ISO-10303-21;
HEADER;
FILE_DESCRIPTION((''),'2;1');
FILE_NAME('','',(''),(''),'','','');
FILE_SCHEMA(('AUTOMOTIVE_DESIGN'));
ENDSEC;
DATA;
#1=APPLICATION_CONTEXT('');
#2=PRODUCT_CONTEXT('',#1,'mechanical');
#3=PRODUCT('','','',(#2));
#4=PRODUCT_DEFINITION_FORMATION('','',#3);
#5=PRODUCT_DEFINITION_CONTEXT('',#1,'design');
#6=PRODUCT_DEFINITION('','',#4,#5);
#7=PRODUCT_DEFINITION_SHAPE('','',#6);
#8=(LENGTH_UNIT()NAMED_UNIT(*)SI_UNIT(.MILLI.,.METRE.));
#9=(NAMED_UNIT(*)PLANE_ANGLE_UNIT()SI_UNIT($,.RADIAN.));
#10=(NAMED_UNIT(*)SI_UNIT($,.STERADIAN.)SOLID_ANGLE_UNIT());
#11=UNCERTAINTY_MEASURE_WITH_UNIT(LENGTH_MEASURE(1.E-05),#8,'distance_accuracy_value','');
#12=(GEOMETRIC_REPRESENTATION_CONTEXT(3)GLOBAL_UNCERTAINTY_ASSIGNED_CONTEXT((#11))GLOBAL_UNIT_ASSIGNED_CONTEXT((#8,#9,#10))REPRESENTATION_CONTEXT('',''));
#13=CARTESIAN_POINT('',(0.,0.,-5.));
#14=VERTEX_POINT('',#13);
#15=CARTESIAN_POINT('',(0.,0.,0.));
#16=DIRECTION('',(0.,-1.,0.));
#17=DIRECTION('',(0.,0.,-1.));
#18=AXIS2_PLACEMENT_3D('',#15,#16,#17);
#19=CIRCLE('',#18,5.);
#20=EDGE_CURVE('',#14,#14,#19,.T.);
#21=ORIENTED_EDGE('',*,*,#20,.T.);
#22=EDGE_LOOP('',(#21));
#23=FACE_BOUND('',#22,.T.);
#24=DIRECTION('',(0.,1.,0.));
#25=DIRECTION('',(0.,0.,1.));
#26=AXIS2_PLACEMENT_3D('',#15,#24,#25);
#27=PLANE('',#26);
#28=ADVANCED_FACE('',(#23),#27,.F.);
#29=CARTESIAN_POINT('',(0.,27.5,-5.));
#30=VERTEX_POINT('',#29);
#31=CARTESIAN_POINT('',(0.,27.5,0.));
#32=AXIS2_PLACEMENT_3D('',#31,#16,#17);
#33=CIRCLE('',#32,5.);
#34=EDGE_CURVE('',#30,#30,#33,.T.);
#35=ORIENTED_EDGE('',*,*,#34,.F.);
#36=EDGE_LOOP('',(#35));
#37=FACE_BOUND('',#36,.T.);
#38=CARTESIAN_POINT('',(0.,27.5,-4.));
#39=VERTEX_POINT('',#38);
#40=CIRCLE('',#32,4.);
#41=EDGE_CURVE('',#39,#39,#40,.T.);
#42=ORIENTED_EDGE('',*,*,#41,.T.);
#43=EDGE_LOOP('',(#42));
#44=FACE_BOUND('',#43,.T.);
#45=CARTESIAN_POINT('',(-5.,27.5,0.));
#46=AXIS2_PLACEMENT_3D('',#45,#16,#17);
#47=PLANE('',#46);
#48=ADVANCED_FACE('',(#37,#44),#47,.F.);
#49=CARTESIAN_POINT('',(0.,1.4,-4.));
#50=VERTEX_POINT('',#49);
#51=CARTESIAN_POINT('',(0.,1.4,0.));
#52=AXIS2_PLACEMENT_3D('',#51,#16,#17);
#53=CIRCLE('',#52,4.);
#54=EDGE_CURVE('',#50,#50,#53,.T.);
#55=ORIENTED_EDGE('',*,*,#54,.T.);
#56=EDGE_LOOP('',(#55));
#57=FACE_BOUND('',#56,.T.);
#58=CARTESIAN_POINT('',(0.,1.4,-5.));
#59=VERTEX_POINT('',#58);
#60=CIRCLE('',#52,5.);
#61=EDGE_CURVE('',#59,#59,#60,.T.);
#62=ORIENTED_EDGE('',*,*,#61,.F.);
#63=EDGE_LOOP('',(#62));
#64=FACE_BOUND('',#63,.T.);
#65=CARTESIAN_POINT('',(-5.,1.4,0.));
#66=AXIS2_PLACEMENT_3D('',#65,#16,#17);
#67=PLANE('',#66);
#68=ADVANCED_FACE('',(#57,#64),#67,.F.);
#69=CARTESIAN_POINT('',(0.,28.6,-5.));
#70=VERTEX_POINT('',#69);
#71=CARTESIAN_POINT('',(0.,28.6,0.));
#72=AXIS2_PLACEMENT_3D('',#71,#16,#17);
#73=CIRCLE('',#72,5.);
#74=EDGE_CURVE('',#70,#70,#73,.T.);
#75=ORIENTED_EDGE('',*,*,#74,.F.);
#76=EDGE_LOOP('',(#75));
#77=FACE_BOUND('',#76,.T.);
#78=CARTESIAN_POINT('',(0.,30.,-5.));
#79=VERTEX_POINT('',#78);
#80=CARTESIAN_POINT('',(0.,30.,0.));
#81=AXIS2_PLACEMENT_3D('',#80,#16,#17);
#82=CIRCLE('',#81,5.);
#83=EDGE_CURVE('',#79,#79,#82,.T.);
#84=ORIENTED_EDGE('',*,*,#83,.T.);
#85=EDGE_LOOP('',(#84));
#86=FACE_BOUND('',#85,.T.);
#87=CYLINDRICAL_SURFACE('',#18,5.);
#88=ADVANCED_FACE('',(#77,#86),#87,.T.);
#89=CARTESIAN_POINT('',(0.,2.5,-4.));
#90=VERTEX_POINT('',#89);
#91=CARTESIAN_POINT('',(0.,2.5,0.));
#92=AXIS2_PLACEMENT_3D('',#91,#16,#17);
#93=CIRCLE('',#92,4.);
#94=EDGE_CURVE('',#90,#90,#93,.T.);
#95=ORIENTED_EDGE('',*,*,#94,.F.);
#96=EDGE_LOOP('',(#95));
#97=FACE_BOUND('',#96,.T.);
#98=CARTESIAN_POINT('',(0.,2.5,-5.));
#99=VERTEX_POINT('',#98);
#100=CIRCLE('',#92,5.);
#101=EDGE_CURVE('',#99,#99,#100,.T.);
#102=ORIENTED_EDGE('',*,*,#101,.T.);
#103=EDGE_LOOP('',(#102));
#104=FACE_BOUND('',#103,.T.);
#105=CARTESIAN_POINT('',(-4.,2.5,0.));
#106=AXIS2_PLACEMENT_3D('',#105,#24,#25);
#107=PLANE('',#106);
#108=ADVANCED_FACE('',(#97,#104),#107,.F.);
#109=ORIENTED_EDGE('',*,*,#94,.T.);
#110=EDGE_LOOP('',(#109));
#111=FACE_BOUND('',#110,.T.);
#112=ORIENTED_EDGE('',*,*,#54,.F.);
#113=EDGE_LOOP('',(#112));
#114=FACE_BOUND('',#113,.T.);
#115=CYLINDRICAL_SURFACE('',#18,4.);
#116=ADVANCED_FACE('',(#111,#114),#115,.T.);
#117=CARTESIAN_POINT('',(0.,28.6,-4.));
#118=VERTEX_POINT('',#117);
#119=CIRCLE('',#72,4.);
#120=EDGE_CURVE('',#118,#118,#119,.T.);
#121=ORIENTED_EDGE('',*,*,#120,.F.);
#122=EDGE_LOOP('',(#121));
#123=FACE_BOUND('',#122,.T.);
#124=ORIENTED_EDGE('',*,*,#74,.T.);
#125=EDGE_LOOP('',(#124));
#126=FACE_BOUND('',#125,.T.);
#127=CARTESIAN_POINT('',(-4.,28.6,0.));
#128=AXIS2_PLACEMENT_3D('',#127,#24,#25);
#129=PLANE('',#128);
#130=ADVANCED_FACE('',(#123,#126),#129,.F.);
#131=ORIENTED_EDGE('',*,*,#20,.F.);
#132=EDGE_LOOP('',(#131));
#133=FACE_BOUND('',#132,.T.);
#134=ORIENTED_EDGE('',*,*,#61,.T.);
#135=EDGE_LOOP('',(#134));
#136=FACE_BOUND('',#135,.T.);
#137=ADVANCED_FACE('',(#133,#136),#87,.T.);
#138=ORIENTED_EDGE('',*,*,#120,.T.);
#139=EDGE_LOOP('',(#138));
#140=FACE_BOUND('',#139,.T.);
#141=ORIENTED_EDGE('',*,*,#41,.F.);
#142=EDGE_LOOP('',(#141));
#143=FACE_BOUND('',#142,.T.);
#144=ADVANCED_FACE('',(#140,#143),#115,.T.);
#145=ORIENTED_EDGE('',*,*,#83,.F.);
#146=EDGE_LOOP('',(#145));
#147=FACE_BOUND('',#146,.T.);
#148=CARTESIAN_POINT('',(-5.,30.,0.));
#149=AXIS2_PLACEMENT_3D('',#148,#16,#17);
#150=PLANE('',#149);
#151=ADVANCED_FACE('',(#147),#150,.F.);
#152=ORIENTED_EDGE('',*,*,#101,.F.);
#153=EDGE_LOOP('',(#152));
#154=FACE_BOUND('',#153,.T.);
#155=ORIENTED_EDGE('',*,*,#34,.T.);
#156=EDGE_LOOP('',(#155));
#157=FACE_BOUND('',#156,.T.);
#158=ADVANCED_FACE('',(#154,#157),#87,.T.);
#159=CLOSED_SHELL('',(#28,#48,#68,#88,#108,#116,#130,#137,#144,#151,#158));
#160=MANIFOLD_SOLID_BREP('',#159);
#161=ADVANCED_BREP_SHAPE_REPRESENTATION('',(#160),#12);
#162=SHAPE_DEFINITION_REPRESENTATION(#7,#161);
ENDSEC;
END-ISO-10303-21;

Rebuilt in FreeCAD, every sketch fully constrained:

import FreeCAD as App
import Part
import Sketcher

V = App.Vector
Q = App.Units.Quantity


def add_polygon(sketch, points):
    """Adds a closed chain of lines whose ends are joined by coincident constraints."""
    first, n = sketch.GeometryCount, len(points)
    for a, b in zip(points, points[1:] + points[:1]):
        sketch.addGeometry(Part.LineSegment(App.Vector(*a, 0), App.Vector(*b, 0)), False)
    for i in range(n):
        sketch.addConstraint(Sketcher.Constraint("Coincident", first + i, 2, first + (i + 1) % n, 1))

doc = App.newDocument("Part")
body = doc.addObject("PartDesign::Body", "Body")

# Sketch on XY plane
sketch1 = body.newObject("Sketcher::SketchObject", "Sketch")
sketch1.AttachmentSupport = (doc.getObject("XY_Plane"), [""])
sketch1.MapMode = "FlatFace"
add_polygon(sketch1, [(-5, 0), (0, 0), (0, 30), (-5, 30), (-5, 28.6), (-4, 28.6), (-4, 27.5), (-5, 27.5), (-5, 2.5), (-4, 2.5), (-4, 1.4), (-5, 1.4)])  # lines 0-11
sketch1.addConstraint([
    Sketcher.Constraint("Horizontal", 0),
    Sketcher.Constraint("Vertical", 1),
    Sketcher.Constraint("Horizontal", 2),
    Sketcher.Constraint("Vertical", 3),
    Sketcher.Constraint("Horizontal", 4),
    Sketcher.Constraint("Vertical", 5),
    Sketcher.Constraint("Horizontal", 6),
    Sketcher.Constraint("Vertical", 7),
    Sketcher.Constraint("Horizontal", 8),
    Sketcher.Constraint("Vertical", 9),
    Sketcher.Constraint("Horizontal", 10),
    Sketcher.Constraint("Vertical", 11),
    Sketcher.Constraint("Coincident", 0, 2, -1, 1),
    Sketcher.Constraint("Vertical", 3, 2, 6, 2),
    Sketcher.Constraint("Vertical", 5, 2, 8, 2),
    Sketcher.Constraint("Vertical", 7, 2, 10, 2),
    Sketcher.Constraint("Equal", 5, 9),
    Sketcher.Constraint("Equal", 3, 11),
    Sketcher.Constraint("DistanceX", 0, 1, 0, 2, Q("5 mm")),
    Sketcher.Constraint("DistanceX", 4, 1, 4, 2, Q("1 mm")),
    Sketcher.Constraint("DistanceY", 1, 1, 1, 2, Q("30 mm")),
    Sketcher.Constraint("DistanceY", 7, 2, 7, 1, Q("25 mm")),
    Sketcher.Constraint("DistanceY", 3, 2, 3, 1, Q("1.4 mm")),
])
revolution = body.newObject("PartDesign::Revolution", "Revolution")
revolution.Profile = sketch1
revolution.ReferenceAxis = (sketch1, ["V_Axis"])
revolution.Angle = 360

doc.recompute()
